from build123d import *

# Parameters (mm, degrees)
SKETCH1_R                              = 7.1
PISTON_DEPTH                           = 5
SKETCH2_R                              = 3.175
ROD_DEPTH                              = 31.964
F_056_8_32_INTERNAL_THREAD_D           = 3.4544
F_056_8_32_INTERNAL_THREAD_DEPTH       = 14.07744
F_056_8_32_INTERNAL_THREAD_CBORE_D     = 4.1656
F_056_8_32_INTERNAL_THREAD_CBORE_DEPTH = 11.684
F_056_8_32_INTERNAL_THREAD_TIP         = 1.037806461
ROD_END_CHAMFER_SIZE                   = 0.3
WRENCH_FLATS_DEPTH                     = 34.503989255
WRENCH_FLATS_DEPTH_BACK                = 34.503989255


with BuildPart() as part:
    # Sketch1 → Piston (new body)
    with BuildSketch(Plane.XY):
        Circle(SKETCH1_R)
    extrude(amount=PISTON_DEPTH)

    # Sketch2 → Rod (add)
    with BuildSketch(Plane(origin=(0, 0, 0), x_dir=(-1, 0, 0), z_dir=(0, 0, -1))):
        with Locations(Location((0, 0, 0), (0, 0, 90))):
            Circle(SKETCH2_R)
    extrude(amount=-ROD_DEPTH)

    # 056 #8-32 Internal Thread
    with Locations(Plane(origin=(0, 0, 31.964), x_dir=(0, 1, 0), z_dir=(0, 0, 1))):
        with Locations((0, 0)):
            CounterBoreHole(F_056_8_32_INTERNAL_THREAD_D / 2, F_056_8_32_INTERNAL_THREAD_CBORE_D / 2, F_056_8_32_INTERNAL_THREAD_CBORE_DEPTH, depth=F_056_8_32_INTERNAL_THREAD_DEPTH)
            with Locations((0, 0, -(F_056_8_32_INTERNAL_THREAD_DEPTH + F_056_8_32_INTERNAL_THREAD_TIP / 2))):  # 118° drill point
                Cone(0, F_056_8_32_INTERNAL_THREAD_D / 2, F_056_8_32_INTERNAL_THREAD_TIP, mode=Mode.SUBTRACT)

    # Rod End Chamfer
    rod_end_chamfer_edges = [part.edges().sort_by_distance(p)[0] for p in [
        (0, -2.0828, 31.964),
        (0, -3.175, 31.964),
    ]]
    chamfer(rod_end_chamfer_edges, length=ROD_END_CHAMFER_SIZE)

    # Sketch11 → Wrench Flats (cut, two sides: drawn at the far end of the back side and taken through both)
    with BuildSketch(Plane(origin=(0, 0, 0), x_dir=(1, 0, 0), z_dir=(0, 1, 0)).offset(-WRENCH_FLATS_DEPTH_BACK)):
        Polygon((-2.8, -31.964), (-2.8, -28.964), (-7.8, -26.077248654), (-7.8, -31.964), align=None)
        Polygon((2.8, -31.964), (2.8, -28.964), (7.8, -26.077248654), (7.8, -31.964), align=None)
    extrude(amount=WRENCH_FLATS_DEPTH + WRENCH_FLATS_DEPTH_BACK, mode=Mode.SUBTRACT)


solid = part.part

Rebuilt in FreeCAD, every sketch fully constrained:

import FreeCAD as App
import Part
import Sketcher
from FreeCAD import Vector
Q = App.Units.Quantity


def edges_at(feature, points):
    """Names of the edges that pass closest to the given points."""
    edges = feature.Shape.Edges
    near = lambda p: min(range(len(edges)), key=lambda i: edges[i].distToShape(Part.Vertex(*p))[0])
    return sorted({f"Edge{near(p) + 1}" for p in points})


def add_polygon(sketch, points):
    """Adds a closed chain of lines whose ends are joined by coincident constraints."""
    first, n = sketch.GeometryCount, len(points)
    for a, b in zip(points, points[1:] + points[:1]):
        sketch.addGeometry(Part.LineSegment(App.Vector(*a, 0), App.Vector(*b, 0)), False)
    for i in range(n):
        sketch.addConstraint(Sketcher.Constraint("Coincident", first + i, 2, first + (i + 1) % n, 1))

doc = App.newDocument("Part")
params = doc.addObject("Spreadsheet::Sheet", "Params")
for row, (alias, value) in enumerate([
    ("sketch1_diameter", "14.2 mm"),
    ("pad1_length", "5 mm"),
    ("sketch2_diameter", "6.35 mm"),
    ("pad2_length", "31.964 mm"),
    ("hole_diameter", "3.4544 mm"),
    ("hole_depth", "14.07744 mm"),
    ("hole_cbore_diameter", "4.1656 mm"),
    ("hole_cbore_depth", "11.684 mm"),
    ("chamfer_size", "0.3 mm"),
    ("sketch4_width", "5 mm"),
    ("sketch4_height", "3 mm"),
], start=1):
    params.set(f"A{row}", alias)
    params.set(f"B{row}", "=" + value)
    params.setAlias(f"B{row}", alias)

body = doc.addObject("PartDesign::Body", "Body")

# Sketch on XY plane
sketch1 = doc.addObject("Sketcher::SketchObject", "Sketch")
body.addObject(sketch1)
sketch1.AttachmentSupport = (doc.XY_Plane, [""])
sketch1.MapMode = "FlatFace"
sketch1.addGeometry(Part.Circle(Vector(0, 0, 0), Vector(0, 0, 1), 7), False)
sketch1.addConstraint(Sketcher.Constraint("Coincident", 0, 3, -1, 1))
sketch1.addConstraint(Sketcher.Constraint("Diameter", 0, 14.2))
sketch1.setExpression("Constraints[1]", "Params.sketch1_diameter")
pad1 = doc.addObject("PartDesign::Pad", "Pad")
body.addObject(pad1)
pad1.Profile = sketch1
pad1.setExpression("Length", "Params.pad1_length")

# Sketch on XY plane
sketch2 = doc.addObject("Sketcher::SketchObject", "Sketch001")
body.addObject(sketch2)
sketch2.AttachmentSupport = (doc.XY_Plane, [""])
sketch2.MapMode = "FlatFace"
sketch2.addGeometry(Part.Circle(Vector(0, 0, 0), Vector(0, 0, 1), 3.2), False)
sketch2.addConstraint(Sketcher.Constraint("Coincident", 0, 3, -1, 1))
sketch2.addConstraint(Sketcher.Constraint("Diameter", 0, 6.35))
sketch2.setExpression("Constraints[1]", "Params.sketch2_diameter")
pad2 = doc.addObject("PartDesign::Pad", "Pad001")
body.addObject(pad2)
pad2.Profile = sketch2
pad2.setExpression("Length", "Params.pad2_length")

# Sketch on XY plane
sketch3 = doc.addObject("Sketcher::SketchObject", "Sketch002")
body.addObject(sketch3)
sketch3.AttachmentSupport = (doc.XY_Plane, [""])
sketch3.MapMode = "FlatFace"
sketch3.AttachmentOffset = App.Placement(Vector(0, 0, 31.964), App.Rotation())
sketch3.addGeometry(Part.Circle(Vector(0, 0, 0), Vector(0, 0, 1), 1.7), False)
sketch3.addConstraint(Sketcher.Constraint("Coincident", 0, 3, -1, 1))
sketch3.addConstraint(Sketcher.Constraint("Diameter", 0, 3.4544))
doc.recompute()
hole = doc.addObject("PartDesign::Hole", "Hole")
body.addObject(hole)
hole.Profile = sketch3
hole.ThreadType = "None"
hole.setExpression("Diameter", "Params.hole_diameter")
hole.DepthType = "Dimension"
hole.setExpression("Depth", "Params.hole_depth")
hole.DrillPoint = "Angled"
hole.DrillPointAngle = 118
hole.HoleCutType = "Counterbore"
hole.setExpression("HoleCutDiameter", "Params.hole_cbore_diameter")
hole.setExpression("HoleCutDepth", "Params.hole_cbore_depth")
doc.recompute()

chamfer = doc.addObject("PartDesign::Chamfer", "Chamfer")
body.addObject(chamfer)
chamfer.Base = (hole, edges_at(hole, [(0, -2.083, 31.964), (0, -3.175, 31.964)]))
chamfer.setExpression("Size", "Params.chamfer_size")

# Sketch on XZ plane
sketch4 = doc.addObject("Sketcher::SketchObject", "Sketch003")
body.addObject(sketch4)
sketch4.AttachmentSupport = (doc.XZ_Plane, [""])
sketch4.MapMode = "FlatFace"
add_polygon(sketch4, [(-2.8, 32), (-2.8, 29), (-7.8, 26.1), (-7.8, 32)])  # lines 0-3
add_polygon(sketch4, [(2.8, 29), (2.8, 32), (7.8, 32), (7.8, 26.1)])  # lines 4-7
sketch4.addConstraint(Sketcher.Constraint("Vertical", 0))
sketch4.addConstraint(Sketcher.Constraint("Vertical", 2))
sketch4.addConstraint(Sketcher.Constraint("Horizontal", 3))
sketch4.addConstraint(Sketcher.Constraint("Vertical", 4))
sketch4.addConstraint(Sketcher.Constraint("Horizontal", 5))
sketch4.addConstraint(Sketcher.Constraint("Vertical", 6))
sketch4.addConstraint(Sketcher.Constraint("Symmetric", 3, 2, 4, 2, -2))
sketch4.addConstraint(Sketcher.Constraint("Symmetric", 1, 2, 6, 2, -2))
sketch4.addConstraint(Sketcher.Constraint("Horizontal", 0, 2, 7, 2))
sketch4.addConstraint(Sketcher.Constraint("DistanceX", 3, 1, 3, 2, 5.0))
sketch4.addConstraint(Sketcher.Constraint("DistanceY", 0, 2, 0, 1, 3.0))
sketch4.addConstraint(Sketcher.Constraint("Angle", 1, Q("-150 deg")))
sketch4.addConstraint(Sketcher.Constraint("DistanceX", 0, 2, -1, 1, 2.8))
sketch4.addConstraint(Sketcher.Constraint("DistanceY", -1, 1, 0, 2, 28.964))
sketch4.setExpression("Constraints[17]", "Params.sketch4_width")
sketch4.setExpression("Constraints[18]", "Params.sketch4_height")
pocket1 = doc.addObject("PartDesign::Pocket", "Pocket")
body.addObject(pocket1)
pocket1.Profile = sketch4
pocket1.Type = "ThroughAll"
pocket1.Midplane = True

doc.recompute()
